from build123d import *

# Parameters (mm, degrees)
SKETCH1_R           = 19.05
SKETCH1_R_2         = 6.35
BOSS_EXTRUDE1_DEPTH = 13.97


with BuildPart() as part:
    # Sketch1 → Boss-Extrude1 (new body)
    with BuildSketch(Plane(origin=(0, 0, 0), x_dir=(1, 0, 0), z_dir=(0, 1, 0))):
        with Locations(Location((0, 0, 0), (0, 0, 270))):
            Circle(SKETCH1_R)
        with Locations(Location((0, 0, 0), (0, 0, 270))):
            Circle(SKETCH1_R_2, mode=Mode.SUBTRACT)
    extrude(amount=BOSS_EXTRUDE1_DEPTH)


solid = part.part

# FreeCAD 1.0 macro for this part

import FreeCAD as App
import Part
import Sketcher
Q = App.Units.Quantity

doc = App.newDocument("Part")
body = doc.addObject("PartDesign::Body", "Body")

sketch1 = body.newObject("Sketcher::SketchObject", "Sketch")
sketch1.AttachmentSupport = (doc.getObject("XZ_Plane"), [""])
sketch1.MapMode = "FlatFace"
sketch1.addGeometry([
    Part.Circle(App.Vector(0, 0, 0), App.Vector(0, 0, 1), 19),
    Part.Circle(App.Vector(0, 0, 0), App.Vector(0, 0, 1), 6),
], False)
sketch1.addConstraint([
    Sketcher.Constraint("Coincident", 0, 3, -1, 1),
    Sketcher.Constraint("Coincident", 1, 3, -1, 1),
    Sketcher.Constraint("Diameter", 0, Q("1.5 in")),
    Sketcher.Constraint("Diameter", 1, Q("0.5 in")),
])
pad1 = body.newObject("PartDesign::Pad", "Pad")
pad1.Profile = sketch1
pad1.Length = Q("0.55 in")
pad1.Reversed = True

doc.recompute()
